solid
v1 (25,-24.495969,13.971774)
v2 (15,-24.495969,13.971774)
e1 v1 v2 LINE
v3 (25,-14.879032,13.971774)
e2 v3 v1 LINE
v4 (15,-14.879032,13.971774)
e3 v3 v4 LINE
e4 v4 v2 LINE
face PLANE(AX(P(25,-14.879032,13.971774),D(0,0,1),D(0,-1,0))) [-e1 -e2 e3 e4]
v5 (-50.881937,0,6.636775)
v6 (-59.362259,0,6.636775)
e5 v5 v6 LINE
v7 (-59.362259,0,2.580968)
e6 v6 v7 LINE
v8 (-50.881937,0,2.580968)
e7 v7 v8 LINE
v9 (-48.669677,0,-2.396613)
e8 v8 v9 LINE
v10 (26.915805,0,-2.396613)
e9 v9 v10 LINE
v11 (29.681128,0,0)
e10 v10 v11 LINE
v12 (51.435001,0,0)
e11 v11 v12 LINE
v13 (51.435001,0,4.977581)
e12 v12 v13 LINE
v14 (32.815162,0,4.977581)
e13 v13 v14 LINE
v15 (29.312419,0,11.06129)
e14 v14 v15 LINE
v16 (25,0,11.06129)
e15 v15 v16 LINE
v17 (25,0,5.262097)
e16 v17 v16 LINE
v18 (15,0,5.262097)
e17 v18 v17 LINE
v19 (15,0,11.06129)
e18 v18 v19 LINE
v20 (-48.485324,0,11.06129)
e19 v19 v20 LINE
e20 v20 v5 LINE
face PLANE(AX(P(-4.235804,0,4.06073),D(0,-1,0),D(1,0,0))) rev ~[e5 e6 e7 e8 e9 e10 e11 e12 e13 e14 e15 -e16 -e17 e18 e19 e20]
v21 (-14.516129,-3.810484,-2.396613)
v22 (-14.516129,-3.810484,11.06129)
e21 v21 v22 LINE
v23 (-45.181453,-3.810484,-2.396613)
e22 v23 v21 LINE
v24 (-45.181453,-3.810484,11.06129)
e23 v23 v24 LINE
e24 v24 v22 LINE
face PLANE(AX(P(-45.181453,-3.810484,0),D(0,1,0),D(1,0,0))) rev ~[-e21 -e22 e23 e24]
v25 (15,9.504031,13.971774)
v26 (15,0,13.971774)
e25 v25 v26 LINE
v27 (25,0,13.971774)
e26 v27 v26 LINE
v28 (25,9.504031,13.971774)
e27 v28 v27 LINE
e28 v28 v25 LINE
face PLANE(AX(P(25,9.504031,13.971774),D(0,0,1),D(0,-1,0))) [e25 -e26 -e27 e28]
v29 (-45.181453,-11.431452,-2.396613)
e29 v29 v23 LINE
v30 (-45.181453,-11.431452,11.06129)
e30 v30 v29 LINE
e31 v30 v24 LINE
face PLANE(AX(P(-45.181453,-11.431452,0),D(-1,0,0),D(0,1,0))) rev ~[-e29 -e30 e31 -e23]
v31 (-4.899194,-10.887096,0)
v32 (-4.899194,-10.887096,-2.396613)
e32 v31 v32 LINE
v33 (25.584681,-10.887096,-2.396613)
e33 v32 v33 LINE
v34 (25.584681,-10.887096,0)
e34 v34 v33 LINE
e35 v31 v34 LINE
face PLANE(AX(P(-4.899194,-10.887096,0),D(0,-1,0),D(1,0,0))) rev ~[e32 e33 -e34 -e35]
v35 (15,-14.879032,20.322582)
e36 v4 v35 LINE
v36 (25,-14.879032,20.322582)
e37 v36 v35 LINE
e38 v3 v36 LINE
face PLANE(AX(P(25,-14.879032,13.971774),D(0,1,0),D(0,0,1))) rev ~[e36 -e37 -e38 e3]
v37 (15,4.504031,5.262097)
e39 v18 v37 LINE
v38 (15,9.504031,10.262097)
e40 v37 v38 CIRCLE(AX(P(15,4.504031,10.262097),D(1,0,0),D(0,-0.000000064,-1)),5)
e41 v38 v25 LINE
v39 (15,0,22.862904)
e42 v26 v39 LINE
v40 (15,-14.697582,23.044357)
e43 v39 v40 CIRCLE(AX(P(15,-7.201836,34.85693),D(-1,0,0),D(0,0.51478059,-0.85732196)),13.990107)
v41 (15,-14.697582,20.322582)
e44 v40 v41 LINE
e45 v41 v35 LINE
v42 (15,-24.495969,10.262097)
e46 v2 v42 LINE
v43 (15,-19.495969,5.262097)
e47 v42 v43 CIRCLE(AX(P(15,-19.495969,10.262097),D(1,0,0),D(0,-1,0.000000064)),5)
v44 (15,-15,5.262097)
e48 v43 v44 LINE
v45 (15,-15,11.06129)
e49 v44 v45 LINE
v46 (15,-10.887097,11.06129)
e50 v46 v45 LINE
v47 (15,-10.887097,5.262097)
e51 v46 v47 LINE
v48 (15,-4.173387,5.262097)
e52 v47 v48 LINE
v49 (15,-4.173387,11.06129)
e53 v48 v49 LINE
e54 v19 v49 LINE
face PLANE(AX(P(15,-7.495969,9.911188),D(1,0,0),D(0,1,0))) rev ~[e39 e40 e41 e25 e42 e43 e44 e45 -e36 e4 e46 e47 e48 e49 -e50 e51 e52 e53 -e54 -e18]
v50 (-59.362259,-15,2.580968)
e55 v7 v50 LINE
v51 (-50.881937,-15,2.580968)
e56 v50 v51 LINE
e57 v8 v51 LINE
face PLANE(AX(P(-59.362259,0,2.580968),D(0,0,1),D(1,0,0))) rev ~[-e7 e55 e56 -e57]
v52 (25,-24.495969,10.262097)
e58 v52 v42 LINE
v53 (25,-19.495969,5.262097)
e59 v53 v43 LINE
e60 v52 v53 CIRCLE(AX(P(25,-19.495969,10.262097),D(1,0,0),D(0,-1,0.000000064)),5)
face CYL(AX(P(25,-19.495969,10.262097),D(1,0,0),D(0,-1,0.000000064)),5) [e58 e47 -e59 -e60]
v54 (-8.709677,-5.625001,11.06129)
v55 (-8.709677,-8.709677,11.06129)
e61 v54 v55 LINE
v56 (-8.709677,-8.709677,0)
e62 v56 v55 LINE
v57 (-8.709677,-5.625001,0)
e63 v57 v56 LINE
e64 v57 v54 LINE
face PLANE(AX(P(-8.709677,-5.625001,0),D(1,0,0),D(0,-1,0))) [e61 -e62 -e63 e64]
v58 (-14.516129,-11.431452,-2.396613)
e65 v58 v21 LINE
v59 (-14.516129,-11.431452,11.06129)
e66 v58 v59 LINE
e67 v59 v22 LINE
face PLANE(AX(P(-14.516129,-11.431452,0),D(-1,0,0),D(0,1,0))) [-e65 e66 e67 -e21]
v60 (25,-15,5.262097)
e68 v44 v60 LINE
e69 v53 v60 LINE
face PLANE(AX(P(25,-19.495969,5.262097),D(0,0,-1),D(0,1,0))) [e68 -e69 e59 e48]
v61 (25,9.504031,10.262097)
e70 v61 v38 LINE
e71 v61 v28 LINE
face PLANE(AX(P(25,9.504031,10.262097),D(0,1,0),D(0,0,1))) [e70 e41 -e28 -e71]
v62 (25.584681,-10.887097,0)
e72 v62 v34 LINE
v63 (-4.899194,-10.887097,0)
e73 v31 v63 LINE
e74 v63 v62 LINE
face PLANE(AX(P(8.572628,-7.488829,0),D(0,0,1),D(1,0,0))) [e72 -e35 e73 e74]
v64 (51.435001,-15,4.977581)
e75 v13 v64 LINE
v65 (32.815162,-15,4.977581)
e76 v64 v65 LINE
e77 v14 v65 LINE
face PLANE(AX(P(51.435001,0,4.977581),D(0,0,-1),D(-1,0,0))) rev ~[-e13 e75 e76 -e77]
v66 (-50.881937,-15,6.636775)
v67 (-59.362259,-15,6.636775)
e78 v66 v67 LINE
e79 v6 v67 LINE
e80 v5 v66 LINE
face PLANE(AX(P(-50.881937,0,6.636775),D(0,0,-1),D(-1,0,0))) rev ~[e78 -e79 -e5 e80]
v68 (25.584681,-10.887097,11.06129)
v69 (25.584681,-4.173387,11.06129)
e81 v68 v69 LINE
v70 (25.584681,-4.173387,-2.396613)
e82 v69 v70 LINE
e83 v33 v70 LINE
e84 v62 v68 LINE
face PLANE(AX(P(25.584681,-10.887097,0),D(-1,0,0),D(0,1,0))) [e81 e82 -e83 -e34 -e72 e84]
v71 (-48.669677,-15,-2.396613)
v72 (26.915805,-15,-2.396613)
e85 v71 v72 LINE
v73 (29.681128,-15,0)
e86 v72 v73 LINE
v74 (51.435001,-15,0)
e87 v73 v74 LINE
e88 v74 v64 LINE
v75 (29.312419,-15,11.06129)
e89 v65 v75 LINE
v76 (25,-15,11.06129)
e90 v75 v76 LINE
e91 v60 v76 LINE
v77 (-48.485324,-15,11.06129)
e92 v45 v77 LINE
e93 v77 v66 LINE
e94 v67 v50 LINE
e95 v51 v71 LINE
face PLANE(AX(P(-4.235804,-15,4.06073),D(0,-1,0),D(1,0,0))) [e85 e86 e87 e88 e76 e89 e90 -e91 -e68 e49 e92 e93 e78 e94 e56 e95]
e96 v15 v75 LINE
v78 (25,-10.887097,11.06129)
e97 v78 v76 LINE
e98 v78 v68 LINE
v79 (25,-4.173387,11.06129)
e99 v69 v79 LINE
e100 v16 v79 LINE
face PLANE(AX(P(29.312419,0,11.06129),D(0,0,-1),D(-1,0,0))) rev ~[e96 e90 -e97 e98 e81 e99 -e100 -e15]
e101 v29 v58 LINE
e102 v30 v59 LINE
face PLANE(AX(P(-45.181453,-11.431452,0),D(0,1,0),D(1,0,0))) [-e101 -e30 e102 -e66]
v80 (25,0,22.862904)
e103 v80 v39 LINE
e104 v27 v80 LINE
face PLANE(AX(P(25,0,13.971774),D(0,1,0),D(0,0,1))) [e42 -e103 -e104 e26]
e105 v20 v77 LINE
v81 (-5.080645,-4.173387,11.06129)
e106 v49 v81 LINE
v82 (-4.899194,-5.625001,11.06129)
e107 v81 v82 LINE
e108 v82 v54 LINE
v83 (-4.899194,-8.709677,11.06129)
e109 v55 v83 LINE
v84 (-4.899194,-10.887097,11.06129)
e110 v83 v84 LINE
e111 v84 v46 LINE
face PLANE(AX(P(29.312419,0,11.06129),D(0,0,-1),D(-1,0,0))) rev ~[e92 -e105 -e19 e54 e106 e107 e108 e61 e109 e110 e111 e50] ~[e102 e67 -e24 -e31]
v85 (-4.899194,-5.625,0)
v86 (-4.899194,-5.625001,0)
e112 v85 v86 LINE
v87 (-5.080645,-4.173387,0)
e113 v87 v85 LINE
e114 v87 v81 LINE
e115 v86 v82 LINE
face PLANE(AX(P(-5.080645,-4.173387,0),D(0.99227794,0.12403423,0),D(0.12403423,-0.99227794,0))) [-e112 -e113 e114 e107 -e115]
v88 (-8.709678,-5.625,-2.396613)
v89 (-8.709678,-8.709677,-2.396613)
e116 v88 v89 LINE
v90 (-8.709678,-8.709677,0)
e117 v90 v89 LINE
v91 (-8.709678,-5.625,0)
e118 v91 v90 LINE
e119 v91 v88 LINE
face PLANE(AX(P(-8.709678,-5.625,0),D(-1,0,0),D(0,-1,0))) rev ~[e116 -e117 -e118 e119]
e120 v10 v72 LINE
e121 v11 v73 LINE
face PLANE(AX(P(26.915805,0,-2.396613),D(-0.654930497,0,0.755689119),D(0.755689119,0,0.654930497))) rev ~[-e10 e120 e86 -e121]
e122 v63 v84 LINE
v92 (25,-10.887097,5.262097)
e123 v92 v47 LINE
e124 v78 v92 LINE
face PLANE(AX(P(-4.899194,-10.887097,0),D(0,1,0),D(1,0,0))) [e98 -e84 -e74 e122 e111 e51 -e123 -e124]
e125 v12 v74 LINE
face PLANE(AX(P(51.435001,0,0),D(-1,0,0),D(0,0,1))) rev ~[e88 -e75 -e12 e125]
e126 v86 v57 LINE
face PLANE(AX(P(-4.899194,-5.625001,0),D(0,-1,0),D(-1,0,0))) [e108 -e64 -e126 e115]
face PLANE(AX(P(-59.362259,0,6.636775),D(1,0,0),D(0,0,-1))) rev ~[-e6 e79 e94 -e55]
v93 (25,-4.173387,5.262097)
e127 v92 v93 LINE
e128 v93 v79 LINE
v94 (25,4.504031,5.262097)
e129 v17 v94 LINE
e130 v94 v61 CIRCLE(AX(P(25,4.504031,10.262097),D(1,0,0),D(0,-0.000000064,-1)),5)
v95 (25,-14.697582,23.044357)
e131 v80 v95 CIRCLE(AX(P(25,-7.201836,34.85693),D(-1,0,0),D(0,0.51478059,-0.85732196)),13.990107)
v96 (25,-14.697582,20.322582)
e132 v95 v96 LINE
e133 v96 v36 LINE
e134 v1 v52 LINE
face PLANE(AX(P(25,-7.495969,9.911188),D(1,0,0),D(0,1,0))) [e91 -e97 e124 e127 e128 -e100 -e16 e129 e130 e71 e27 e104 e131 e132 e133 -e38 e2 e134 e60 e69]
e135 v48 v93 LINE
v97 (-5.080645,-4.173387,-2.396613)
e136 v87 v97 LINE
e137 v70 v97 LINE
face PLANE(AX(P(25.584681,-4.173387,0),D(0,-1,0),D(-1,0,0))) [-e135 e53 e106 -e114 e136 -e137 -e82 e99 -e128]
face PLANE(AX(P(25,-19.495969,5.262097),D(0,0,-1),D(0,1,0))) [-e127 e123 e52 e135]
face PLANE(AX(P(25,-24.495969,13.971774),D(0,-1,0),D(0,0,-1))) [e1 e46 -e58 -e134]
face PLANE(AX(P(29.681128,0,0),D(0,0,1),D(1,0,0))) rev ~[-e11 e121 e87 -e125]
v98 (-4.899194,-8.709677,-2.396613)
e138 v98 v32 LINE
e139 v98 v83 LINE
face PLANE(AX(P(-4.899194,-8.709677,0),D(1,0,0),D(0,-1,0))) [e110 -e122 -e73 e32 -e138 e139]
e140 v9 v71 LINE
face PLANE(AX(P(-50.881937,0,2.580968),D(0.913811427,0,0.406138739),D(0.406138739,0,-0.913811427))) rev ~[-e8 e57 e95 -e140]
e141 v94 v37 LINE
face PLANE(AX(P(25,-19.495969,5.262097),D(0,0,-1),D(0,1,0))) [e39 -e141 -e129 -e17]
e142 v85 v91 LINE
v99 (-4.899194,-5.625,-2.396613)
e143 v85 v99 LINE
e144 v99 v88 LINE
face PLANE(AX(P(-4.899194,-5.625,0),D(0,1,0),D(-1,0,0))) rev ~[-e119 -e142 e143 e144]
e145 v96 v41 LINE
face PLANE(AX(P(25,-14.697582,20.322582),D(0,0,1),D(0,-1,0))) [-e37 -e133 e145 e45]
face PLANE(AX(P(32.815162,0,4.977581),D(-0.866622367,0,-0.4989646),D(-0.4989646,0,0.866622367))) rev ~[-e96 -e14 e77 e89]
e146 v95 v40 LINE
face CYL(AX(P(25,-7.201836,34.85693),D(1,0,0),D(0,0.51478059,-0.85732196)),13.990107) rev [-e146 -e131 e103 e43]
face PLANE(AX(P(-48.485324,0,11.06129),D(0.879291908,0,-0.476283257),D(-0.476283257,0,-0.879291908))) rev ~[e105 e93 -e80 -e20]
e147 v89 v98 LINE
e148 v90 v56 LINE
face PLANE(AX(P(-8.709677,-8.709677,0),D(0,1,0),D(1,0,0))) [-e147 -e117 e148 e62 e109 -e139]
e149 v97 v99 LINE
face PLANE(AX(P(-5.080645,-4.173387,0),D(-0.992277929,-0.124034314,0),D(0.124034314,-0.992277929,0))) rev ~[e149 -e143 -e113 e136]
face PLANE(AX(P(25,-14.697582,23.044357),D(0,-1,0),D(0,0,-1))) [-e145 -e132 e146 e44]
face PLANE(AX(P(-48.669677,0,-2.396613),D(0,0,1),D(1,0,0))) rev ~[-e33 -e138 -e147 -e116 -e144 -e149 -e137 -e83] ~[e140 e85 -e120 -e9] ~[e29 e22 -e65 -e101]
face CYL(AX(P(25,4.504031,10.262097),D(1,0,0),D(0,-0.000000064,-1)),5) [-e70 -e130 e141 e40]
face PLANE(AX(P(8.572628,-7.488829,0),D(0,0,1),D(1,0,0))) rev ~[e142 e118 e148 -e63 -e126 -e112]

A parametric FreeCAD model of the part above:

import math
import FreeCAD as App
import Part
import Sketcher

V = App.Vector
Q = App.Units.Quantity


def add_polygon(sketch, points):
    """Adds a closed chain of lines whose ends are joined by coincident constraints."""
    first, n = sketch.GeometryCount, len(points)
    for a, b in zip(points, points[1:] + points[:1]):
        sketch.addGeometry(Part.LineSegment(App.Vector(*a, 0), App.Vector(*b, 0)), False)
    for i in range(n):
        sketch.addConstraint(Sketcher.Constraint("Coincident", first + i, 2, first + (i + 1) % n, 1))

doc = App.newDocument("Part")
body = doc.addObject("PartDesign::Body", "Body")

# Sketch on XZ plane
sketch1 = body.newObject("Sketcher::SketchObject", "Sketch")
sketch1.AttachmentSupport = (doc.getObject("XZ_Plane"), [""])
sketch1.MapMode = "FlatFace"
add_polygon(sketch1, [(-48.5, 11.1), (-50.9, 6.6), (-59.4, 6.6), (-59.4, 2.6), (-50.9, 2.6), (-48.7, -2.4), (26.9, -2.4), (29.7, 0), (51.4, 0), (51.4, 5), (32.8, 5), (29.3, 11.1)])  # lines 0-11
sketch1.addConstraint([
    Sketcher.Constraint("Horizontal", 1),
    Sketcher.Constraint("Vertical", 2),
    Sketcher.Constraint("Horizontal", 3),
    Sketcher.Constraint("Horizontal", 5),
    Sketcher.Constraint("Horizontal", 7),
    Sketcher.Constraint("Vertical", 8),
    Sketcher.Constraint("Horizontal", 9),
    Sketcher.Constraint("Horizontal", 11),
    Sketcher.Constraint("PointOnObject", 6, 2, -1),
    Sketcher.Constraint("Vertical", 0, 2, 3, 2),
    Sketcher.Constraint("DistanceX", -1, 1, 7, 2, Q("51.435001 mm")),
    Sketcher.Constraint("DistanceX", 5, 1, 5, 2, Q("75.585482 mm")),
    Sketcher.Constraint("DistanceX", 9, 2, 9, 1, Q("18.619839 mm")),
    Sketcher.Constraint("DistanceY", 8, 1, 8, 2, Q("4.977581 mm")),
    Sketcher.Constraint("Distance", 6, Q("3.659339 mm")),
    Sketcher.Constraint("DistanceX", 1, 2, 1, 1, Q("8.480322 mm")),
    Sketcher.Constraint("DistanceX", 7, 1, 7, 2, Q("21.753873 mm")),
    Sketcher.Constraint("DistanceX", 11, 2, 11, 1, Q("77.797743 mm")),
    Sketcher.Constraint("DistanceY", 2, 2, 2, 1, Q("4.055807 mm")),
    Sketcher.Constraint("DistanceX", 1, 2, -1, 1, Q("59.362259 mm")),
    Sketcher.Constraint("DistanceX", -1, 1, 10, 2, Q("29.312419 mm")),
    Sketcher.Constraint("DistanceY", -1, 1, 10, 2, Q("11.06129 mm")),
    Sketcher.Constraint("DistanceX", 3, 2, 4, 2, Q("2.21226 mm")),
    Sketcher.Constraint("DistanceY", 4, 2, 3, 2, Q("4.977581 mm")),
])
pad1 = body.newObject("PartDesign::Pad", "Pad")
pad1.Profile = sketch1
pad1.Length = 15

# Sketch on XY plane
sketch2 = body.newObject("Sketcher::SketchObject", "Sketch001")
sketch2.AttachmentSupport = (doc.getObject("XY_Plane"), [""])
sketch2.MapMode = "FlatFace"
add_polygon(sketch2, [(-45, -4), (-45, -11), (-15, -11), (-15, -4)])  # lines 0-3
sketch2.addConstraint([
    Sketcher.Constraint("Vertical", 0),
    Sketcher.Constraint("Horizontal", 1),
    Sketcher.Constraint("Vertical", 2),
    Sketcher.Constraint("Horizontal", 3),
    Sketcher.Constraint("DistanceX", 1, 1, 1, 2, Q("30.665324 mm")),
    Sketcher.Constraint("DistanceY", 0, 2, 0, 1, Q("7.620968 mm")),
    Sketcher.Constraint("DistanceX", 1, 2, -1, 1, Q("14.516129 mm")),
    Sketcher.Constraint("DistanceY", 0, 2, -1, 1, Q("11.431452 mm")),
])
pocket1 = body.newObject("PartDesign::Pocket", "Pocket")
pocket1.Profile = sketch2
pocket1.Type = "ThroughAll"
pocket1.Reversed = True

# Sketch on XY plane
sketch3 = body.newObject("Sketcher::SketchObject", "Sketch002")
sketch3.AttachmentSupport = (doc.getObject("XY_Plane"), [""])
sketch3.MapMode = "FlatFace"
add_polygon(sketch3, [(-45, -4), (-45, -11), (-15, -11), (-15, -4)])  # lines 0-3
sketch3.addConstraint([
    Sketcher.Constraint("Vertical", 0),
    Sketcher.Constraint("Horizontal", 1),
    Sketcher.Constraint("Vertical", 2),
    Sketcher.Constraint("Horizontal", 3),
    Sketcher.Constraint("DistanceX", 1, 1, 1, 2, Q("30.665324 mm")),
    Sketcher.Constraint("DistanceY", 0, 2, 0, 1, Q("7.620968 mm")),
    Sketcher.Constraint("DistanceX", 1, 2, -1, 1, Q("14.516129 mm")),
    Sketcher.Constraint("DistanceY", 0, 2, -1, 1, Q("11.431452 mm")),
])
pocket2 = body.newObject("PartDesign::Pocket", "Pocket001")
pocket2.Profile = sketch3
pocket2.Type = "ThroughAll"

# Sketch on XY plane
sketch4 = body.newObject("Sketcher::SketchObject", "Sketch003")
sketch4.AttachmentSupport = (doc.getObject("XY_Plane"), [""])
sketch4.MapMode = "FlatFace"
add_polygon(sketch4, [(25.6, -4.2), (-5.1, -4.2), (-4.9, -5.6), (-8.7, -5.6), (-8.7, -8.7), (-4.9, -8.7), (-4.9, -10.9), (25.6, -10.9)])  # lines 0-7
sketch4.addConstraint([
    Sketcher.Constraint("Horizontal", 0),
    Sketcher.Constraint("Horizontal", 2),
    Sketcher.Constraint("Vertical", 3),
    Sketcher.Constraint("Horizontal", 4),
    Sketcher.Constraint("Vertical", 5),
    Sketcher.Constraint("Horizontal", 6),
    Sketcher.Constraint("Vertical", 7),
    Sketcher.Constraint("Vertical", 1, 2, 4, 2),
    Sketcher.Constraint("DistanceY", 1, 2, -1, 1, Q("5.625001 mm")),
    Sketcher.Constraint("DistanceY", 5, 2, 5, 1, Q("2.17742 mm")),
    Sketcher.Constraint("DistanceY", 7, 1, 7, 2, Q("6.71371 mm")),
    Sketcher.Constraint("Distance", 1, Q("1.462911 mm")),
    Sketcher.Constraint("DistanceX", 0, 2, 0, 1, Q("30.665326 mm")),
    Sketcher.Constraint("DistanceX", 2, 2, 2, 1, Q("3.810483 mm")),
    Sketcher.Constraint("DistanceX", 6, 1, 6, 2, Q("30.483875 mm")),
    Sketcher.Constraint("DistanceX", -1, 1, 6, 2, Q("25.584681 mm")),
])
pocket3 = body.newObject("PartDesign::Pocket", "Pocket002")
pocket3.Profile = sketch4
pocket3.Type = "ThroughAll"
pocket3.Reversed = True

# Sketch on XY plane
sketch5 = body.newObject("Sketcher::SketchObject", "Sketch004")
sketch5.AttachmentSupport = (doc.getObject("XY_Plane"), [""])
sketch5.MapMode = "FlatFace"
add_polygon(sketch5, [(25.6, -4.2), (-5.1, -4.2), (-4.9, -5.6), (-8.7, -5.6), (-8.7, -8.7), (-4.9, -8.7), (-4.9, -10.9), (25.6, -10.9)])  # lines 0-7
sketch5.addConstraint([
    Sketcher.Constraint("Horizontal", 0),
    Sketcher.Constraint("Horizontal", 2),
    Sketcher.Constraint("Vertical", 3),
    Sketcher.Constraint("Horizontal", 4),
    Sketcher.Constraint("Vertical", 5),
    Sketcher.Constraint("Horizontal", 6),
    Sketcher.Constraint("Vertical", 7),
    Sketcher.Constraint("Vertical", 1, 2, 4, 2),
    Sketcher.Constraint("DistanceY", 1, 2, -1, 1, Q("5.625 mm")),
    Sketcher.Constraint("DistanceY", 5, 2, 5, 1, Q("2.177419 mm")),
    Sketcher.Constraint("DistanceY", 7, 1, 7, 2, Q("6.713709 mm")),
    Sketcher.Constraint("Distance", 1, Q("1.46291 mm")),
    Sketcher.Constraint("DistanceX", 0, 2, 0, 1, Q("30.665326 mm")),
    Sketcher.Constraint("DistanceX", 2, 2, 2, 1, Q("3.810484 mm")),
    Sketcher.Constraint("DistanceX", 6, 1, 6, 2, Q("30.483875 mm")),
    Sketcher.Constraint("DistanceX", -1, 1, 6, 2, Q("25.584681 mm")),
])
pocket4 = body.newObject("PartDesign::Pocket", "Pocket003")
pocket4.Profile = sketch5
pocket4.Type = "ThroughAll"

# Sketch on YZ plane
sketch6 = body.newObject("Sketcher::SketchObject", "Sketch005")
sketch6.AttachmentSupport = (doc.getObject("YZ_Plane"), [""])
sketch6.MapMode = "FlatFace"
sketch6.AttachmentOffset = App.Placement(V(0, 0, 25), App.Rotation())
sketch6.addGeometry([
    Part.LineSegment(V(-14.88, 13.97, 0), V(-24.5, 13.97, 0)),  # 0
    Part.LineSegment(V(-24.5, 13.97, 0), V(-24.5, 10.26, 0)),  # 1
    Part.ArcOfCircle(Part.Circle(V(-19.5, 10.26, 0), V(0, 0, 1), 5), math.radians(180), math.radians(270)),  # 2
    Part.LineSegment(V(-19.5, 5.26, 0), V(4.5, 5.26, 0)),  # 3
    Part.ArcOfCircle(Part.Circle(V(4.5, 10.26, 0), V(0, 0, 1), 5), math.radians(-90), math.radians(0)),  # 4
    Part.LineSegment(V(9.5, 10.26, 0), V(9.5, 13.97, 0)),  # 5
    Part.LineSegment(V(9.5, 13.97, 0), V(0, 13.97, 0)),  # 6
    Part.LineSegment(V(0, 13.97, 0), V(0, 22.86, 0)),  # 7
    Part.ArcOfCircle(Part.Circle(V(-7.2, 34.86, 0), V(0, 0, 1), 13.99), math.radians(-122), math.radians(-59)),  # 8
    Part.LineSegment(V(-14.7, 23.04, 0), V(-14.7, 20.32, 0)),  # 9
    Part.LineSegment(V(-14.7, 20.32, 0), V(-14.88, 20.32, 0)),  # 10
    Part.LineSegment(V(-14.88, 20.32, 0), V(-14.88, 13.97, 0)),  # 11
], False)
sketch6.addConstraint([
    Sketcher.Constraint("Coincident", 0, 2, 1, 1),
    Sketcher.Constraint("Tangent", 1, 2, 2, 1),
    Sketcher.Constraint("Tangent", 2, 2, 3, 1),
    Sketcher.Constraint("Tangent", 3, 2, 4, 1),
    Sketcher.Constraint("Tangent", 4, 2, 5, 1),
    Sketcher.Constraint("Coincident", 5, 2, 6, 1),
    Sketcher.Constraint("Coincident", 6, 2, 7, 1),
    Sketcher.Constraint("Coincident", 7, 2, 8, 2),
    Sketcher.Constraint("Coincident", 8, 1, 9, 1),
    Sketcher.Constraint("Coincident", 9, 2, 10, 1),
    Sketcher.Constraint("Coincident", 10, 2, 11, 1),
    Sketcher.Constraint("Coincident", 11, 2, 0, 1),
    Sketcher.Constraint("Horizontal", 0),
    Sketcher.Constraint("Vertical", 1),
    Sketcher.Constraint("Horizontal", 3),
    Sketcher.Constraint("Vertical", 5),
    Sketcher.Constraint("Horizontal", 6),
    Sketcher.Constraint("Vertical", 7),
    Sketcher.Constraint("Vertical", 9),
    Sketcher.Constraint("Horizontal", 10),
    Sketcher.Constraint("Vertical", 11),
    Sketcher.Constraint("Equal", 2, 4),
    Sketcher.Constraint("PointOnObject", 6, 2, -2),
    Sketcher.Constraint("Horizontal", 0, 2, 5, 2),
    Sketcher.Constraint("Radius", 2, Q("5 mm")),
    Sketcher.Constraint("DistanceX", 3, 1, 3, 2, Q("24 mm")),
    Sketcher.Constraint("Radius", 8, Q("13.990107 mm")),
    Sketcher.Constraint("DistanceX", 6, 2, 6, 1, Q("9.504031 mm")),
    Sketcher.Constraint("DistanceX", 10, 2, 10, 1, Q("0.18145 mm")),
    Sketcher.Constraint("DistanceY", 7, 1, 7, 2, Q("8.89113 mm")),
    Sketcher.Constraint("DistanceY", 11, 2, 11, 1, Q("6.350808 mm")),
    Sketcher.Constraint("DistanceX", 0, 2, 0, 1, Q("9.616936 mm")),
    Sketcher.Constraint("DistanceY", 1, 2, 1, 1, Q("3.709677 mm")),
    Sketcher.Constraint("DistanceY", 9, 2, 9, 1, Q("2.721775 mm")),
    Sketcher.Constraint("DistanceY", -1, 1, 8, 3, Q("34.85693 mm")),
])
pad2 = body.newObject("PartDesign::Pad", "Pad001")
pad2.Profile = sketch6
pad2.Length = 10
pad2.Reversed = True

doc.recompute()
